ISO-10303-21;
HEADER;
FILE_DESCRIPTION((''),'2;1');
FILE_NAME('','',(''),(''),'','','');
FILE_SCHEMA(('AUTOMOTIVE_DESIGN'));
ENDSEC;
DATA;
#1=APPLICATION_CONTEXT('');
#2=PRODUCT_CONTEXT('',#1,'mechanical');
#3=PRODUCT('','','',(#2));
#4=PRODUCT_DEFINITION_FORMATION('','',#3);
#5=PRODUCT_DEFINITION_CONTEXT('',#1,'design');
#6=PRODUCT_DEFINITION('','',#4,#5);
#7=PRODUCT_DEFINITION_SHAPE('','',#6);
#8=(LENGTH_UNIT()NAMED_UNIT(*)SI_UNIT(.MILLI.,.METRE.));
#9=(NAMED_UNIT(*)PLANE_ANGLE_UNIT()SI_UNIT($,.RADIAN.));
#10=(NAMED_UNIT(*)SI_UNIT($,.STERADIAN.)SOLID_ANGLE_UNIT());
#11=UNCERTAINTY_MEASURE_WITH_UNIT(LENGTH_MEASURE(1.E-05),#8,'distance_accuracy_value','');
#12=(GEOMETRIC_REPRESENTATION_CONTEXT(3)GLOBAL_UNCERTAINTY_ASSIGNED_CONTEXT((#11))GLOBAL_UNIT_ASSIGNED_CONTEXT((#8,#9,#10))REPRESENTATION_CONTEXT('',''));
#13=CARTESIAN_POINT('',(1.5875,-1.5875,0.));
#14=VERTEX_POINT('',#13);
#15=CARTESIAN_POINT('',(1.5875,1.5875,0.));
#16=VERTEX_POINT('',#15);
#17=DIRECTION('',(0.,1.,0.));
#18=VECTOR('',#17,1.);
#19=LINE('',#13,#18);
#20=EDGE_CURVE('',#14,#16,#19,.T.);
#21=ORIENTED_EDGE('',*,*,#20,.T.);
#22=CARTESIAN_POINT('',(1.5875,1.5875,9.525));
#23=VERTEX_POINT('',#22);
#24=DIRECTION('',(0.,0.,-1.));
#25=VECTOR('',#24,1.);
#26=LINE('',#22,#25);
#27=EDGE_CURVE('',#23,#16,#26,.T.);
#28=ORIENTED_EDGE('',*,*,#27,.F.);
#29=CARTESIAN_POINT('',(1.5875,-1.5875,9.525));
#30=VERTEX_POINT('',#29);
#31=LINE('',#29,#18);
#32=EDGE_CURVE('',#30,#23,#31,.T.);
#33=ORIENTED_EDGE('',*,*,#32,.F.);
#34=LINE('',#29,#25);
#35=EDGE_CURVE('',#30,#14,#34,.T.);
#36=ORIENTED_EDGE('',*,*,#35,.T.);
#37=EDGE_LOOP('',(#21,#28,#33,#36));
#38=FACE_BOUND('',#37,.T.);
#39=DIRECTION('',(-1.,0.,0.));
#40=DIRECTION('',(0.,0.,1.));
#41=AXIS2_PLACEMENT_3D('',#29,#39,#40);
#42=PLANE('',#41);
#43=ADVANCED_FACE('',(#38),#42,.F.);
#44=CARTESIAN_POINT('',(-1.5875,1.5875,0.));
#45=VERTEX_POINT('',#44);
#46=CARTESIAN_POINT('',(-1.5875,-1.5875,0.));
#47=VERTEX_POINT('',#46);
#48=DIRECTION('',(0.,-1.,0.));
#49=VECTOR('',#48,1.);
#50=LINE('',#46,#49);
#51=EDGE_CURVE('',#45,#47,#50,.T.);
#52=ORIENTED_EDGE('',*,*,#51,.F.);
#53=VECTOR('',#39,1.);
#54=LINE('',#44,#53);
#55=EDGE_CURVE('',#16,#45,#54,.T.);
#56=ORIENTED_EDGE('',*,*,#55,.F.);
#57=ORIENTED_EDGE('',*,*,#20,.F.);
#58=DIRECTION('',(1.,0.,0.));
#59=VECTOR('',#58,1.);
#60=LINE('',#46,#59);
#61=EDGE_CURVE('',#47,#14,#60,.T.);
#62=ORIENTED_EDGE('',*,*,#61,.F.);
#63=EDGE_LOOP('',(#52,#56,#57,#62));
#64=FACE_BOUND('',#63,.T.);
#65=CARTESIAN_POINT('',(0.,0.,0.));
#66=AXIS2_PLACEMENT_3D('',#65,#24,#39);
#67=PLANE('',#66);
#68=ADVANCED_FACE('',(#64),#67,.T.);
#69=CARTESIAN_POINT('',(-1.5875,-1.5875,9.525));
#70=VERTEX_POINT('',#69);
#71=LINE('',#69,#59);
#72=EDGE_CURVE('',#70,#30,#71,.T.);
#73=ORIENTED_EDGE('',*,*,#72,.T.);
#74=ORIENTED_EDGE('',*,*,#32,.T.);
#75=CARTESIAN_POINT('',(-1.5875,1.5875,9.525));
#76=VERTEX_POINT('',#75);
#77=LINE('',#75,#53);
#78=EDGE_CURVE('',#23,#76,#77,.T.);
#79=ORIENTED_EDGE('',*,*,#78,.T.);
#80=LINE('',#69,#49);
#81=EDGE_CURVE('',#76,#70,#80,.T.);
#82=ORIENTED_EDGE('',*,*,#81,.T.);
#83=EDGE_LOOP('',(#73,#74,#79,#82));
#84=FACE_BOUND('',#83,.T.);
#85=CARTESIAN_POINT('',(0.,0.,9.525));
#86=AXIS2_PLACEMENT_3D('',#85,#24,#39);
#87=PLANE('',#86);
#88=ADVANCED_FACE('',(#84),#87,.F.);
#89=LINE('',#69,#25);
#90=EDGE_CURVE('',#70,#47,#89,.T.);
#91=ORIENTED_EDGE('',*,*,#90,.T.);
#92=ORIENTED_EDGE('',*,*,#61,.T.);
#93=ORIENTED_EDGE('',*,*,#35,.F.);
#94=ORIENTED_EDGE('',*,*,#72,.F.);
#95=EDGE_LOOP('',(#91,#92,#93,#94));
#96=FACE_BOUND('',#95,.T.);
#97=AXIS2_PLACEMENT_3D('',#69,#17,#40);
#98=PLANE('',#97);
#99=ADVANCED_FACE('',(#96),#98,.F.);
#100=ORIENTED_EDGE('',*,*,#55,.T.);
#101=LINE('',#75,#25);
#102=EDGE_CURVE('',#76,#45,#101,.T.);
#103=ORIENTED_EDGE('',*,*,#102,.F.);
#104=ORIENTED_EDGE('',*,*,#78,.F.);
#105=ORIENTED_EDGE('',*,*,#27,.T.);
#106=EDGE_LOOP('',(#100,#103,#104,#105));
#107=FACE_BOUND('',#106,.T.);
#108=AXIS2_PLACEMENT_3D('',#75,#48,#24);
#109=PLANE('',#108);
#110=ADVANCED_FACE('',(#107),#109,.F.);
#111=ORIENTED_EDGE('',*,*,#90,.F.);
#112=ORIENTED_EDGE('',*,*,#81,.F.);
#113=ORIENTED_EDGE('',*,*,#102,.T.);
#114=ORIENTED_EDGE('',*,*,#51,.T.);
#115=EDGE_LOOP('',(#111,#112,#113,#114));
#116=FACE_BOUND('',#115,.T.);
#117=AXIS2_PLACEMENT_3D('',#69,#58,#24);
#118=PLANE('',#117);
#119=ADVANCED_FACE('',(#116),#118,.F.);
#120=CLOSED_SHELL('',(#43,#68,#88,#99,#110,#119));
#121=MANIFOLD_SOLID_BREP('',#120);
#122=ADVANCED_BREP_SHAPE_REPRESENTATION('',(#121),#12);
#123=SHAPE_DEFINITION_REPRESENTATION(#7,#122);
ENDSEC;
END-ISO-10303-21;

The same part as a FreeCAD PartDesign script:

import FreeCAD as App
import Part
import Sketcher
Q = App.Units.Quantity

doc = App.newDocument("Part")
params = doc.addObject("Spreadsheet::Sheet", "Params")
for row, (alias, value) in enumerate([
    ("sketch1_width", "0.125 in"),
    ("pad1_length", "0.375 in"),
], start=1):
    params.set(f"A{row}", alias)
    params.set(f"B{row}", "=" + value)
    params.setAlias(f"B{row}", alias)

body = doc.addObject("PartDesign::Body", "Body")

# Sketch on XY plane
sketch1 = body.newObject("Sketcher::SketchObject", "Sketch")
sketch1.AttachmentSupport = (doc.getObject("XY_Plane"), [""])
sketch1.MapMode = "FlatFace"
sketch1.addGeometry(Part.LineSegment(App.Vector(-1.5875, 1.5875, 0), App.Vector(-1.5875, -1.5875, 0)), False)
sketch1.addGeometry(Part.LineSegment(App.Vector(-1.5875, -1.5875, 0), App.Vector(1.5875, -1.5875, 0)), False)
sketch1.addGeometry(Part.LineSegment(App.Vector(1.5875, -1.5875, 0), App.Vector(1.5875, 1.5875, 0)), False)
sketch1.addGeometry(Part.LineSegment(App.Vector(1.5875, 1.5875, 0), App.Vector(-1.5875, 1.5875, 0)), False)
sketch1.addConstraint(Sketcher.Constraint("Coincident", 0, 2, 1, 1))
sketch1.addConstraint(Sketcher.Constraint("Coincident", 1, 2, 2, 1))
sketch1.addConstraint(Sketcher.Constraint("Coincident", 2, 2, 3, 1))
sketch1.addConstraint(Sketcher.Constraint("Coincident", 3, 2, 0, 1))
sketch1.addConstraint(Sketcher.Constraint("Vertical", 0))
sketch1.addConstraint(Sketcher.Constraint("Horizontal", 1))
sketch1.addConstraint(Sketcher.Constraint("Vertical", 2))
sketch1.addConstraint(Sketcher.Constraint("Horizontal", 3))
sketch1.addConstraint(Sketcher.Constraint("Symmetric", 0, 2, 2, 2, -1, 1))
sketch1.addConstraint(Sketcher.Constraint("Equal", 3, 0))
sketch1.addConstraint(Sketcher.Constraint("DistanceX", 1, 1, 1, 2, Q("0.125 in")))
sketch1.setExpression("Constraints[10]", "Params.sketch1_width")
pad1 = body.newObject("PartDesign::Pad", "Pad")
pad1.Profile = sketch1
pad1.setExpression("Length", "Params.pad1_length")

doc.recompute()
